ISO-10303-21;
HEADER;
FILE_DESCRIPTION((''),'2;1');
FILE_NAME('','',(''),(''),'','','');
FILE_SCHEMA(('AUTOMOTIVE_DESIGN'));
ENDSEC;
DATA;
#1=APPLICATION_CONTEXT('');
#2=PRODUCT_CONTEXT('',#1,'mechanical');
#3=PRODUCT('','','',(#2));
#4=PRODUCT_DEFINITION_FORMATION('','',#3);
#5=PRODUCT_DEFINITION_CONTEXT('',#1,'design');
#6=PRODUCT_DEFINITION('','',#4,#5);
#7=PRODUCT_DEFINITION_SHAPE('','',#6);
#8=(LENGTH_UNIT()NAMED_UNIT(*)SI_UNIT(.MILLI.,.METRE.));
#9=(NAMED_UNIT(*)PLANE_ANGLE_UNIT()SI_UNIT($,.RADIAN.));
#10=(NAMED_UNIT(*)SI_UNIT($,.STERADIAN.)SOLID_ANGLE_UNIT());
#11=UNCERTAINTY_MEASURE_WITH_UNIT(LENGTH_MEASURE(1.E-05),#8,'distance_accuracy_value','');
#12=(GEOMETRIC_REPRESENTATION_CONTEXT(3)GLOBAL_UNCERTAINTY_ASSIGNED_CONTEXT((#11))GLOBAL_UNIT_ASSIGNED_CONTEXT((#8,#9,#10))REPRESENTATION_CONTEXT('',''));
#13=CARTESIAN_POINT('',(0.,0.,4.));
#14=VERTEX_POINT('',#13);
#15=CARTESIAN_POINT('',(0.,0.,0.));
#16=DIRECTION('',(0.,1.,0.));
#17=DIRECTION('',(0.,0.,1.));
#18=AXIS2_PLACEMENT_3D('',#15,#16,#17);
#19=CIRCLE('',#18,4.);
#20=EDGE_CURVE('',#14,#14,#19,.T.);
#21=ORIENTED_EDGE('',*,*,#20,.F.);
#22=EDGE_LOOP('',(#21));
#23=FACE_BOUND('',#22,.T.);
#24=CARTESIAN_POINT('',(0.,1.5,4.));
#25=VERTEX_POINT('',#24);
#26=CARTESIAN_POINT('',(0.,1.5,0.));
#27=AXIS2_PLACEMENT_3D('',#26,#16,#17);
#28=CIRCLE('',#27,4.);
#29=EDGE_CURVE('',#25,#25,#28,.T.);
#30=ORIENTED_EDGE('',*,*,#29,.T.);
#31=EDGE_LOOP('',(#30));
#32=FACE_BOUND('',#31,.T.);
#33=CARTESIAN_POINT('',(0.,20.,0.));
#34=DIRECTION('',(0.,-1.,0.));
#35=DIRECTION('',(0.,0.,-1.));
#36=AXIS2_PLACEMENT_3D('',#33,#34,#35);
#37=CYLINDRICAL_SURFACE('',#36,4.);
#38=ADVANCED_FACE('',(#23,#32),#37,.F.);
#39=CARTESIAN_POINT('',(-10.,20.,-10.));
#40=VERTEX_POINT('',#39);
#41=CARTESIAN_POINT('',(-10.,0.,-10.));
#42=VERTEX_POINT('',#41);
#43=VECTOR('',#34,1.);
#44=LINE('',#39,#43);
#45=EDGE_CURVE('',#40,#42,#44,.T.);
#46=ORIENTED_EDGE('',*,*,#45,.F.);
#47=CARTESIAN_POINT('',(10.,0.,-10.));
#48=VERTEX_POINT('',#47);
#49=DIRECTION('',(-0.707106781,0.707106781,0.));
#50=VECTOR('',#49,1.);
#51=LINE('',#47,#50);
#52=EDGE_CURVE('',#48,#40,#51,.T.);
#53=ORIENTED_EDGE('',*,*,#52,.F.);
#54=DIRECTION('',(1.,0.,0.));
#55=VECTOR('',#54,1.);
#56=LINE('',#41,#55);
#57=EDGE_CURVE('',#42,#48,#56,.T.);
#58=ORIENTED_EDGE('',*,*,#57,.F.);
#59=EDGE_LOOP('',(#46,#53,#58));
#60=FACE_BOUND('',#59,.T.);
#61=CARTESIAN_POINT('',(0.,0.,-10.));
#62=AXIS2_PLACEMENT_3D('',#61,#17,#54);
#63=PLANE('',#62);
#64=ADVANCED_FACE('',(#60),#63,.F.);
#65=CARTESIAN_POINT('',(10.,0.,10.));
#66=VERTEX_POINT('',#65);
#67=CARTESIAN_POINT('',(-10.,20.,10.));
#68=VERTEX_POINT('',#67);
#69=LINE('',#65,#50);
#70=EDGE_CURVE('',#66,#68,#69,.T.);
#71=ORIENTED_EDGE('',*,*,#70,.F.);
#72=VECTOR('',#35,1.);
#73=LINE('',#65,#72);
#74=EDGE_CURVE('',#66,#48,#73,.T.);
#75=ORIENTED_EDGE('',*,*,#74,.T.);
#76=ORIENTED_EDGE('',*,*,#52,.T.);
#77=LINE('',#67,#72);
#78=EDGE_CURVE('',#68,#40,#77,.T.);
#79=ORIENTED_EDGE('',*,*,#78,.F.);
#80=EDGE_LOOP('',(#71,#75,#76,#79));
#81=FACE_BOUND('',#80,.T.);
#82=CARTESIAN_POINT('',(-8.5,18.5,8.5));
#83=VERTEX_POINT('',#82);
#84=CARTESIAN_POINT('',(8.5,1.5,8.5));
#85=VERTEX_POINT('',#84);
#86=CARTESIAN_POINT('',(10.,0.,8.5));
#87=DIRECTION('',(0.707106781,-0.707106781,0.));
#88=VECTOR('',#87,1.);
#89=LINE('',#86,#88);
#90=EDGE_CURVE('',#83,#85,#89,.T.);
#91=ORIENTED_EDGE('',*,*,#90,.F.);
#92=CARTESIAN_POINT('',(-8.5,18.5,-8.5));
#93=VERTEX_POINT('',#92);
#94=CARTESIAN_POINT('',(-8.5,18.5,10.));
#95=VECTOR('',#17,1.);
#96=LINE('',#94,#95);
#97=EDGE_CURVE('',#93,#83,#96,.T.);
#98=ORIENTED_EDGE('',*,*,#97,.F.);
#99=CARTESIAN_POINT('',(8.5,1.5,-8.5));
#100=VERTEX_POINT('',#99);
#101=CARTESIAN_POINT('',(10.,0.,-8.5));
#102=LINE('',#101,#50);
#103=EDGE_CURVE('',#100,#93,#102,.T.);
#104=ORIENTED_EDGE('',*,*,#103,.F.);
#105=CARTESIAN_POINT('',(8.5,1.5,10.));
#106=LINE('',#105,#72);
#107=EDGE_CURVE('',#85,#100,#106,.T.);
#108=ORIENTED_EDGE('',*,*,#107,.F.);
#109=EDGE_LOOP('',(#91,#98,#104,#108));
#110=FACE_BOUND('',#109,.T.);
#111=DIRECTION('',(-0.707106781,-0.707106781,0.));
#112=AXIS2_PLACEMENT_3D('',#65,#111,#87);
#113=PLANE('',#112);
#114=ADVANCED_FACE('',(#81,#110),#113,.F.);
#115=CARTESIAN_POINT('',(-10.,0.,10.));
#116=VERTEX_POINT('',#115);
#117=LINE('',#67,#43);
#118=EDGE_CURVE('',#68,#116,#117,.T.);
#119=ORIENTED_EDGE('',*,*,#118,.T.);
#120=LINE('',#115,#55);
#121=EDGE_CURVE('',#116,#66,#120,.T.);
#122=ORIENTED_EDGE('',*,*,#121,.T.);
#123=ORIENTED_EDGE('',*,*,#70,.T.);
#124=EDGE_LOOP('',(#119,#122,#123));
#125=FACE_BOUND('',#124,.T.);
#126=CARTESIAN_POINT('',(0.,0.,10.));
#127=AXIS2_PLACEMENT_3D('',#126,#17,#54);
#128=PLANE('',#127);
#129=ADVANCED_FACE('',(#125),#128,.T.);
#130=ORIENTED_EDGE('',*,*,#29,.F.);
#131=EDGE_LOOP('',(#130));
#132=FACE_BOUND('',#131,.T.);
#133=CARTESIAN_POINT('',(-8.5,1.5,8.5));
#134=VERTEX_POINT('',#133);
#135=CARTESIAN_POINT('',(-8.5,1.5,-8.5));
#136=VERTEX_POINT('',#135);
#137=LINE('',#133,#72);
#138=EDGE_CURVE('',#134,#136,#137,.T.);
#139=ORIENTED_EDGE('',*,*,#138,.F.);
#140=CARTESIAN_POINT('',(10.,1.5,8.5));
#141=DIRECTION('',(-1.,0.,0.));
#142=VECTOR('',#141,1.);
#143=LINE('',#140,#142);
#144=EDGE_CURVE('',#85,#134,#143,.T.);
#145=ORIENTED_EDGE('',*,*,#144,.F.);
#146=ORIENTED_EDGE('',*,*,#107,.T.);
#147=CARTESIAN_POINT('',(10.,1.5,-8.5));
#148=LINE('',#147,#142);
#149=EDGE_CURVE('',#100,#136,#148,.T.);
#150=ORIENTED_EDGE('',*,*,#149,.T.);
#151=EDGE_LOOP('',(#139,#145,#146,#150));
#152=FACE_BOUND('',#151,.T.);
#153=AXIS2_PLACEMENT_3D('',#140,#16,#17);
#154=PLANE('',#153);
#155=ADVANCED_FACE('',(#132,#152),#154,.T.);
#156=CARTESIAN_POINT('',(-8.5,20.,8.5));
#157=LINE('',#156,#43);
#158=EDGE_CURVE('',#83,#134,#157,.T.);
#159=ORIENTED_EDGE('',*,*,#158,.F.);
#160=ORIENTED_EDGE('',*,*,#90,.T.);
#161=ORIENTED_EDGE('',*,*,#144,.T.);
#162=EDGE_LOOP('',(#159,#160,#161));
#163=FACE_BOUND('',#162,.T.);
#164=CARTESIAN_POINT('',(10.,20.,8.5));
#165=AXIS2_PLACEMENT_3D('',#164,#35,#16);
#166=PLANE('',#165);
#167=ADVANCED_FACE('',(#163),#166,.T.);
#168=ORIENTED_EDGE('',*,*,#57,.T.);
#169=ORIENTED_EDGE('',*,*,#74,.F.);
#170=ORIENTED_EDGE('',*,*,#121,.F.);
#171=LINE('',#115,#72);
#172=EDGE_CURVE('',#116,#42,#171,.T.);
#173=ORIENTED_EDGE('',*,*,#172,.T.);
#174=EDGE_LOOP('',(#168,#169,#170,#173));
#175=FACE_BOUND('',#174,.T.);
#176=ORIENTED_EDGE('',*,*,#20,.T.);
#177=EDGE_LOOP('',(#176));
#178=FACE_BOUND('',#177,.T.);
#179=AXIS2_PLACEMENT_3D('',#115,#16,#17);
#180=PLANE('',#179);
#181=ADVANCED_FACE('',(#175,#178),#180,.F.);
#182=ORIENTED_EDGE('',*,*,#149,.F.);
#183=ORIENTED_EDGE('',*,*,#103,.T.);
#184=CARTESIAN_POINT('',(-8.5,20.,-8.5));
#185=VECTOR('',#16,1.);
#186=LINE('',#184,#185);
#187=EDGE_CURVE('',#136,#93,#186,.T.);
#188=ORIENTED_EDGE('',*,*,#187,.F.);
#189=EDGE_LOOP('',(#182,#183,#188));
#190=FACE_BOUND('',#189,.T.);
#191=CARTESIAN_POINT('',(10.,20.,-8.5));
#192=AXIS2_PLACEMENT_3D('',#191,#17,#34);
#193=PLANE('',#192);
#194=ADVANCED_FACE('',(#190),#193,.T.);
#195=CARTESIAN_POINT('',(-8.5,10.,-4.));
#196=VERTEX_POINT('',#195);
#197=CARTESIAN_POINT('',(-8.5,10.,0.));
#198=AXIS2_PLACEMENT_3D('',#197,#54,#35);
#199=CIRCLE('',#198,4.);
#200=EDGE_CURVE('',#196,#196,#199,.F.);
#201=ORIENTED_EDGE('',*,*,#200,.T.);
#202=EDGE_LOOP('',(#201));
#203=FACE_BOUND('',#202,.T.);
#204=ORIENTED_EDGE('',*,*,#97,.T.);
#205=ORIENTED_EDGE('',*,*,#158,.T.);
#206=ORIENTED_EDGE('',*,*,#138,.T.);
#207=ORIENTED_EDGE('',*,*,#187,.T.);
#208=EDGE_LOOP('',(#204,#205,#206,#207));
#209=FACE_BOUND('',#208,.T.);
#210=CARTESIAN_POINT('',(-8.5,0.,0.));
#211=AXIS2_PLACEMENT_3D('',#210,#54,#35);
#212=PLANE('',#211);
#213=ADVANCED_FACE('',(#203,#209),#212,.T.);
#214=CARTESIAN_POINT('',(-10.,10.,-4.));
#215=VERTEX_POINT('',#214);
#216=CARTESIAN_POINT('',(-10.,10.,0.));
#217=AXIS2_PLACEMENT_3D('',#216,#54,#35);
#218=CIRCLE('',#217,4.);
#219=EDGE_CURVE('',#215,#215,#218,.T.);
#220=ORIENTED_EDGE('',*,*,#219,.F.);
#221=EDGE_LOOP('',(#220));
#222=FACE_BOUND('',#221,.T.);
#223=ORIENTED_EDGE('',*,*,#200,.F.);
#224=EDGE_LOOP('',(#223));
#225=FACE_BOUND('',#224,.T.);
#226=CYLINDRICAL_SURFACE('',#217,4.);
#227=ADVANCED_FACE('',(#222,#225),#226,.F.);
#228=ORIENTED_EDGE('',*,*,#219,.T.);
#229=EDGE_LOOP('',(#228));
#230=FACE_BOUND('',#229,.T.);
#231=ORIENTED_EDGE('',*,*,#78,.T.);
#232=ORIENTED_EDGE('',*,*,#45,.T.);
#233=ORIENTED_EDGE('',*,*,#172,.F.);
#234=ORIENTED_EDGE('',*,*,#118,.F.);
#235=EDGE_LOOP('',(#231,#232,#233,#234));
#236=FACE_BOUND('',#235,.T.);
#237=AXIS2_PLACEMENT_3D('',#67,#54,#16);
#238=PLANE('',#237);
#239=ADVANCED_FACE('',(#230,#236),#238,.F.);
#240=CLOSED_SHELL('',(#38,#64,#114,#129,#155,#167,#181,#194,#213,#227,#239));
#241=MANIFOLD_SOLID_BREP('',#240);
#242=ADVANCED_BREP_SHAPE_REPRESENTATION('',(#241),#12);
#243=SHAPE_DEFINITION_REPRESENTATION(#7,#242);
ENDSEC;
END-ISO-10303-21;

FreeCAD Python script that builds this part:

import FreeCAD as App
import Part
import Sketcher
Q = App.Units.Quantity

doc = App.newDocument("Part")
body = doc.addObject("PartDesign::Body", "Body")

# Sketch on XY plane
sketch1 = body.newObject("Sketcher::SketchObject", "Sketch")
sketch1.AttachmentSupport = (doc.getObject("XY_Plane"), [""])
sketch1.MapMode = "FlatFace"
sketch1.addGeometry(Part.LineSegment(App.Vector(-10, 0, 0), App.Vector(10, 0, 0)), False)
sketch1.addGeometry(Part.LineSegment(App.Vector(10, 0, 0), App.Vector(-10, 20, 0)), False)
sketch1.addGeometry(Part.LineSegment(App.Vector(-10, 20, 0), App.Vector(-10, 0, 0)), False)
sketch1.addConstraint(Sketcher.Constraint("Coincident", 0, 2, 1, 1))
sketch1.addConstraint(Sketcher.Constraint("Coincident", 1, 2, 2, 1))
sketch1.addConstraint(Sketcher.Constraint("Coincident", 2, 2, 0, 1))
sketch1.addConstraint(Sketcher.Constraint("Horizontal", 0))
sketch1.addConstraint(Sketcher.Constraint("Vertical", 2))
sketch1.addConstraint(Sketcher.Constraint("Symmetric", 0, 2, 2, 2, -1, 1))
sketch1.addConstraint(Sketcher.Constraint("Equal", 0, 2))
sketch1.addConstraint(Sketcher.Constraint("DistanceX", 0, 1, 0, 2, Q("20 mm")))
pad1 = body.newObject("PartDesign::Pad", "Pad")
pad1.Profile = sketch1
pad1.Length = 20
pad1.Midplane = True

# Sketch on XZ plane
sketch2 = body.newObject("Sketcher::SketchObject", "Sketch001")
sketch2.AttachmentSupport = (doc.getObject("XZ_Plane"), [""])
sketch2.MapMode = "FlatFace"
sketch2.addGeometry(Part.Circle(App.Vector(0, 0, 0), App.Vector(0, 0, 1), 4), False)
sketch2.addConstraint(Sketcher.Constraint("Coincident", 0, 3, -1, 1))
sketch2.addConstraint(Sketcher.Constraint("Diameter", 0, Q("8 mm")))
pocket1 = body.newObject("PartDesign::Pocket", "Pocket")
pocket1.Profile = sketch2
pocket1.Length = 20

# Sketch on YZ plane
sketch3 = body.newObject("Sketcher::SketchObject", "Sketch002")
sketch3.AttachmentSupport = (doc.getObject("YZ_Plane"), [""])
sketch3.MapMode = "FlatFace"
sketch3.addGeometry(Part.Circle(App.Vector(10, 0, 0), App.Vector(0, 0, 1), 4), False)
sketch3.addConstraint(Sketcher.Constraint("PointOnObject", 0, 3, -1))
sketch3.addConstraint(Sketcher.Constraint("Diameter", 0, Q("8 mm")))
sketch3.addConstraint(Sketcher.Constraint("DistanceX", -1, 1, 0, 3, Q("10 mm")))
pocket2 = body.newObject("PartDesign::Pocket", "Pocket001")
pocket2.Profile = sketch3
pocket2.Length = 20
pocket2.Midplane = True

# Sketch on YZ plane
sketch4 = body.newObject("Sketcher::SketchObject", "Sketch003")
sketch4.AttachmentSupport = (doc.getObject("YZ_Plane"), [""])
sketch4.MapMode = "FlatFace"
sketch4.addGeometry(Part.LineSegment(App.Vector(20, 8, 0), App.Vector(2, 8, 0)), False)
sketch4.addGeometry(Part.LineSegment(App.Vector(2, 8, 0), App.Vector(2, -8, 0)), False)
sketch4.addGeometry(Part.LineSegment(App.Vector(2, -8, 0), App.Vector(20, -8, 0)), False)
sketch4.addGeometry(Part.LineSegment(App.Vector(20, -8, 0), App.Vector(20, 8, 0)), False)
sketch4.addConstraint(Sketcher.Constraint("Coincident", 0, 2, 1, 1))
sketch4.addConstraint(Sketcher.Constraint("Coincident", 1, 2, 2, 1))
sketch4.addConstraint(Sketcher.Constraint("Coincident", 2, 2, 3, 1))
sketch4.addConstraint(Sketcher.Constraint("Coincident", 3, 2, 0, 1))
sketch4.addConstraint(Sketcher.Constraint("Horizontal", 0))
sketch4.addConstraint(Sketcher.Constraint("Vertical", 1))
sketch4.addConstraint(Sketcher.Constraint("Horizontal", 2))
sketch4.addConstraint(Sketcher.Constraint("Vertical", 3))
sketch4.addConstraint(Sketcher.Constraint("DistanceY", 1, 2, 1, 1, Q("17 mm")))
sketch4.addConstraint(Sketcher.Constraint("DistanceX", 0, 2, 0, 1, Q("18.5 mm")))
sketch4.addConstraint(Sketcher.Constraint("DistanceX", -1, 1, 2, 2, Q("20 mm")))
sketch4.addConstraint(Sketcher.Constraint("DistanceY", -1, 1, 0, 2, Q("8.5 mm")))
pocket3 = body.newObject("PartDesign::Pocket", "Pocket002")
pocket3.Profile = sketch4
pocket3.Type = "TwoLengths"
pocket3.Length = 10
pocket3.Length2 = 8.5
pocket3.Reversed = True

doc.recompute()
